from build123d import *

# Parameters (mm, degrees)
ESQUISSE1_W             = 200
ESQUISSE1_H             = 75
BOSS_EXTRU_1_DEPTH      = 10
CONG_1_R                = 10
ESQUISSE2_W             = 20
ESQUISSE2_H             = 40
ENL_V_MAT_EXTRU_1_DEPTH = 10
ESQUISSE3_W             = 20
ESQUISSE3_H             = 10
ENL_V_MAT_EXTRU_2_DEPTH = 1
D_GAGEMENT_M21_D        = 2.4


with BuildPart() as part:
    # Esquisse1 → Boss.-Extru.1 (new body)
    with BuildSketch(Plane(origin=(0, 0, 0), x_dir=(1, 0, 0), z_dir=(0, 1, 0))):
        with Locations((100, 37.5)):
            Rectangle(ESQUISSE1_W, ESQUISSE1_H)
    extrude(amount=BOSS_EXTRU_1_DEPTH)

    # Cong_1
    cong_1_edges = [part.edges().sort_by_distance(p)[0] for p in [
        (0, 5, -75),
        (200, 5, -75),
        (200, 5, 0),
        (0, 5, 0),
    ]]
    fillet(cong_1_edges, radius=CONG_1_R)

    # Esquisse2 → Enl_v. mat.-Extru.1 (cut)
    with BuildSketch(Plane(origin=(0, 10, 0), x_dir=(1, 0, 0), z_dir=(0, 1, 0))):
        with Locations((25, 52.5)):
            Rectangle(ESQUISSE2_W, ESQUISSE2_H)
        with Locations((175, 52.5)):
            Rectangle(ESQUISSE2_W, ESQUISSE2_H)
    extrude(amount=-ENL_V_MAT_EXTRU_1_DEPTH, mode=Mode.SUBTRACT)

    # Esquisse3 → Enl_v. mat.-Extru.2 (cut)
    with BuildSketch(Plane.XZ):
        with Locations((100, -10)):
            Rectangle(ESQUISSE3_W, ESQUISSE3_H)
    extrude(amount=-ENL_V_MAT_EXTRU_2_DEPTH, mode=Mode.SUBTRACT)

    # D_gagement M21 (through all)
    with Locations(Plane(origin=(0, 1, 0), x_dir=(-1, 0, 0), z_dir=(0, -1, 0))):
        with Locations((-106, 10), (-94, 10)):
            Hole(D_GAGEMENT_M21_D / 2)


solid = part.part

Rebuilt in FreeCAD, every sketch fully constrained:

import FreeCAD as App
import Part
import Sketcher


def edges_at(feature, points):
    """Names of the edges that pass closest to the given points."""
    edges = feature.Shape.Edges
    near = lambda p: min(range(len(edges)), key=lambda i: edges[i].distToShape(Part.Vertex(*p))[0])
    return sorted({f"Edge{near(p) + 1}" for p in points})

doc = App.newDocument("Part")
body = doc.addObject("PartDesign::Body", "Body")

# Sketch on XZ plane
sketch1 = doc.addObject("Sketcher::SketchObject", "Sketch")
body.addObject(sketch1)
sketch1.AttachmentSupport = (doc.XZ_Plane, [""])
sketch1.MapMode = "FlatFace"
sketch1.addGeometry(Part.LineSegment(App.Vector(0, -75, 0), App.Vector(0, 0, 0)), False)
sketch1.addGeometry(Part.LineSegment(App.Vector(0, 0, 0), App.Vector(200, 0, 0)), False)
sketch1.addGeometry(Part.LineSegment(App.Vector(200, 0, 0), App.Vector(200, -75, 0)), False)
sketch1.addGeometry(Part.LineSegment(App.Vector(200, -75, 0), App.Vector(0, -75, 0)), False)
sketch1.addConstraint(Sketcher.Constraint("Coincident", 0, 2, 1, 1))
sketch1.addConstraint(Sketcher.Constraint("Coincident", 1, 2, 2, 1))
sketch1.addConstraint(Sketcher.Constraint("Coincident", 2, 2, 3, 1))
sketch1.addConstraint(Sketcher.Constraint("Coincident", 3, 2, 0, 1))
sketch1.addConstraint(Sketcher.Constraint("Vertical", 0))
sketch1.addConstraint(Sketcher.Constraint("Horizontal", 1))
sketch1.addConstraint(Sketcher.Constraint("Vertical", 2))
sketch1.addConstraint(Sketcher.Constraint("Horizontal", 3))
sketch1.addConstraint(Sketcher.Constraint("Coincident", 0, 2, -1, 1))
sketch1.addConstraint(Sketcher.Constraint("DistanceX", 1, 1, 1, 2, 200.0))
sketch1.addConstraint(Sketcher.Constraint("DistanceY", 0, 1, 0, 2, 75.0))
pad1 = doc.addObject("PartDesign::Pad", "Pad")
body.addObject(pad1)
pad1.Profile = sketch1
pad1.Length = 10
pad1.Reversed = True
doc.recompute()

fillet = doc.addObject("PartDesign::Fillet", "Fillet")
body.addObject(fillet)
fillet.Base = (pad1, edges_at(pad1, [
    (0, 5, -75),
    (200, 5, -75),
    (200, 5, 0),
    (0, 5, 0),
]))
fillet.Radius = 10

# Sketch on XZ plane
sketch2 = doc.addObject("Sketcher::SketchObject", "Sketch001")
body.addObject(sketch2)
sketch2.AttachmentSupport = (doc.XZ_Plane, [""])
sketch2.MapMode = "FlatFace"
sketch2.AttachmentOffset = App.Placement(App.Vector(0, 0, -10), App.Rotation())
sketch2.addGeometry(Part.LineSegment(App.Vector(15, -72, 0), App.Vector(15, -32, 0)), False)
sketch2.addGeometry(Part.LineSegment(App.Vector(15, -32, 0), App.Vector(35, -32, 0)), False)
sketch2.addGeometry(Part.LineSegment(App.Vector(35, -32, 0), App.Vector(35, -72, 0)), False)
sketch2.addGeometry(Part.LineSegment(App.Vector(35, -72, 0), App.Vector(15, -72, 0)), False)
sketch2.addGeometry(Part.LineSegment(App.Vector(165, -72, 0), App.Vector(165, -32, 0)), False)
sketch2.addGeometry(Part.LineSegment(App.Vector(165, -32, 0), App.Vector(185, -32, 0)), False)
sketch2.addGeometry(Part.LineSegment(App.Vector(185, -32, 0), App.Vector(185, -72, 0)), False)
sketch2.addGeometry(Part.LineSegment(App.Vector(185, -72, 0), App.Vector(165, -72, 0)), False)
sketch2.addConstraint(Sketcher.Constraint("Coincident", 0, 2, 1, 1))
sketch2.addConstraint(Sketcher.Constraint("Coincident", 1, 2, 2, 1))
sketch2.addConstraint(Sketcher.Constraint("Coincident", 2, 2, 3, 1))
sketch2.addConstraint(Sketcher.Constraint("Coincident", 3, 2, 0, 1))
sketch2.addConstraint(Sketcher.Constraint("Coincident", 4, 2, 5, 1))
sketch2.addConstraint(Sketcher.Constraint("Coincident", 5, 2, 6, 1))
sketch2.addConstraint(Sketcher.Constraint("Coincident", 6, 2, 7, 1))
sketch2.addConstraint(Sketcher.Constraint("Coincident", 7, 2, 4, 1))
sketch2.addConstraint(Sketcher.Constraint("Vertical", 0))
sketch2.addConstraint(Sketcher.Constraint("Horizontal", 1))
sketch2.addConstraint(Sketcher.Constraint("Vertical", 2))
sketch2.addConstraint(Sketcher.Constraint("Horizontal", 3))
sketch2.addConstraint(Sketcher.Constraint("Vertical", 4))
sketch2.addConstraint(Sketcher.Constraint("Horizontal", 5))
sketch2.addConstraint(Sketcher.Constraint("Vertical", 6))
sketch2.addConstraint(Sketcher.Constraint("Horizontal", 7))
sketch2.addConstraint(Sketcher.Constraint("Horizontal", 1, 2, 4, 2))
sketch2.addConstraint(Sketcher.Constraint("Horizontal", 3, 2, 6, 2))
sketch2.addConstraint(Sketcher.Constraint("Equal", 3, 5))
sketch2.addConstraint(Sketcher.Constraint("DistanceX", 1, 1, 1, 2, 20.0))
sketch2.addConstraint(Sketcher.Constraint("DistanceY", 0, 1, 0, 2, 40.0))
sketch2.addConstraint(Sketcher.Constraint("DistanceX", -1, 1, 0, 2, 15.0))
sketch2.addConstraint(Sketcher.Constraint("DistanceX", -1, 1, 4, 2, 165.0))
sketch2.addConstraint(Sketcher.Constraint("DistanceY", 0, 2, -1, 1, 32.5))
pocket1 = doc.addObject("PartDesign::Pocket", "Pocket")
body.addObject(pocket1)
pocket1.Profile = sketch2
pocket1.Length = 10
pocket1.Reversed = True

# Sketch on XZ plane
sketch3 = doc.addObject("Sketcher::SketchObject", "Sketch002")
body.addObject(sketch3)
sketch3.AttachmentSupport = (doc.XZ_Plane, [""])
sketch3.MapMode = "FlatFace"
sketch3.addGeometry(Part.LineSegment(App.Vector(90, -5, 0), App.Vector(90, -15, 0)), False)
sketch3.addGeometry(Part.LineSegment(App.Vector(90, -15, 0), App.Vector(110, -15, 0)), False)
sketch3.addGeometry(Part.LineSegment(App.Vector(110, -15, 0), App.Vector(110, -5, 0)), False)
sketch3.addGeometry(Part.LineSegment(App.Vector(110, -5, 0), App.Vector(90, -5, 0)), False)
sketch3.addConstraint(Sketcher.Constraint("Coincident", 0, 2, 1, 1))
sketch3.addConstraint(Sketcher.Constraint("Coincident", 1, 2, 2, 1))
sketch3.addConstraint(Sketcher.Constraint("Coincident", 2, 2, 3, 1))
sketch3.addConstraint(Sketcher.Constraint("Coincident", 3, 2, 0, 1))
sketch3.addConstraint(Sketcher.Constraint("Vertical", 0))
sketch3.addConstraint(Sketcher.Constraint("Horizontal", 1))
sketch3.addConstraint(Sketcher.Constraint("Vertical", 2))
sketch3.addConstraint(Sketcher.Constraint("Horizontal", 3))
sketch3.addConstraint(Sketcher.Constraint("DistanceX", 1, 1, 1, 2, 20.0))
sketch3.addConstraint(Sketcher.Constraint("DistanceY", 0, 2, 0, 1, 10.0))
sketch3.addConstraint(Sketcher.Constraint("DistanceX", -1, 1, 0, 2, 90.0))
sketch3.addConstraint(Sketcher.Constraint("DistanceY", 0, 2, -1, 1, 15.0))
pocket2 = doc.addObject("PartDesign::Pocket", "Pocket001")
body.addObject(pocket2)
pocket2.Profile = sketch3
pocket2.Length = 1

# Sketch on XZ plane
sketch4 = doc.addObject("Sketcher::SketchObject", "Sketch003")
body.addObject(sketch4)
sketch4.AttachmentSupport = (doc.XZ_Plane, [""])
sketch4.MapMode = "FlatFace"
sketch4.AttachmentOffset = App.Placement(App.Vector(0, 0, -1), App.Rotation())
sketch4.addGeometry(Part.Circle(App.Vector(106, -10, 0), App.Vector(0, 0, 1), 1.2), False)
sketch4.addGeometry(Part.Circle(App.Vector(94, -10, 0), App.Vector(0, 0, 1), 1.2), False)
sketch4.addConstraint(Sketcher.Constraint("Equal", 0, 1))
sketch4.addConstraint(Sketcher.Constraint("Horizontal", 0, 3, 1, 3))
sketch4.addConstraint(Sketcher.Constraint("Diameter", 0, 2.4))
sketch4.addConstraint(Sketcher.Constraint("DistanceX", -1, 1, 0, 3, 106.0))
sketch4.addConstraint(Sketcher.Constraint("DistanceY", 0, 3, -1, 1, 10.0))
sketch4.addConstraint(Sketcher.Constraint("DistanceX", -1, 1, 1, 3, 94.0))
doc.recompute()
hole = doc.addObject("PartDesign::Hole", "Hole")
body.addObject(hole)
hole.Profile = sketch4
hole.ThreadType = "None"
hole.Diameter = 2.4
hole.DepthType = "ThroughAll"

doc.recompute()
